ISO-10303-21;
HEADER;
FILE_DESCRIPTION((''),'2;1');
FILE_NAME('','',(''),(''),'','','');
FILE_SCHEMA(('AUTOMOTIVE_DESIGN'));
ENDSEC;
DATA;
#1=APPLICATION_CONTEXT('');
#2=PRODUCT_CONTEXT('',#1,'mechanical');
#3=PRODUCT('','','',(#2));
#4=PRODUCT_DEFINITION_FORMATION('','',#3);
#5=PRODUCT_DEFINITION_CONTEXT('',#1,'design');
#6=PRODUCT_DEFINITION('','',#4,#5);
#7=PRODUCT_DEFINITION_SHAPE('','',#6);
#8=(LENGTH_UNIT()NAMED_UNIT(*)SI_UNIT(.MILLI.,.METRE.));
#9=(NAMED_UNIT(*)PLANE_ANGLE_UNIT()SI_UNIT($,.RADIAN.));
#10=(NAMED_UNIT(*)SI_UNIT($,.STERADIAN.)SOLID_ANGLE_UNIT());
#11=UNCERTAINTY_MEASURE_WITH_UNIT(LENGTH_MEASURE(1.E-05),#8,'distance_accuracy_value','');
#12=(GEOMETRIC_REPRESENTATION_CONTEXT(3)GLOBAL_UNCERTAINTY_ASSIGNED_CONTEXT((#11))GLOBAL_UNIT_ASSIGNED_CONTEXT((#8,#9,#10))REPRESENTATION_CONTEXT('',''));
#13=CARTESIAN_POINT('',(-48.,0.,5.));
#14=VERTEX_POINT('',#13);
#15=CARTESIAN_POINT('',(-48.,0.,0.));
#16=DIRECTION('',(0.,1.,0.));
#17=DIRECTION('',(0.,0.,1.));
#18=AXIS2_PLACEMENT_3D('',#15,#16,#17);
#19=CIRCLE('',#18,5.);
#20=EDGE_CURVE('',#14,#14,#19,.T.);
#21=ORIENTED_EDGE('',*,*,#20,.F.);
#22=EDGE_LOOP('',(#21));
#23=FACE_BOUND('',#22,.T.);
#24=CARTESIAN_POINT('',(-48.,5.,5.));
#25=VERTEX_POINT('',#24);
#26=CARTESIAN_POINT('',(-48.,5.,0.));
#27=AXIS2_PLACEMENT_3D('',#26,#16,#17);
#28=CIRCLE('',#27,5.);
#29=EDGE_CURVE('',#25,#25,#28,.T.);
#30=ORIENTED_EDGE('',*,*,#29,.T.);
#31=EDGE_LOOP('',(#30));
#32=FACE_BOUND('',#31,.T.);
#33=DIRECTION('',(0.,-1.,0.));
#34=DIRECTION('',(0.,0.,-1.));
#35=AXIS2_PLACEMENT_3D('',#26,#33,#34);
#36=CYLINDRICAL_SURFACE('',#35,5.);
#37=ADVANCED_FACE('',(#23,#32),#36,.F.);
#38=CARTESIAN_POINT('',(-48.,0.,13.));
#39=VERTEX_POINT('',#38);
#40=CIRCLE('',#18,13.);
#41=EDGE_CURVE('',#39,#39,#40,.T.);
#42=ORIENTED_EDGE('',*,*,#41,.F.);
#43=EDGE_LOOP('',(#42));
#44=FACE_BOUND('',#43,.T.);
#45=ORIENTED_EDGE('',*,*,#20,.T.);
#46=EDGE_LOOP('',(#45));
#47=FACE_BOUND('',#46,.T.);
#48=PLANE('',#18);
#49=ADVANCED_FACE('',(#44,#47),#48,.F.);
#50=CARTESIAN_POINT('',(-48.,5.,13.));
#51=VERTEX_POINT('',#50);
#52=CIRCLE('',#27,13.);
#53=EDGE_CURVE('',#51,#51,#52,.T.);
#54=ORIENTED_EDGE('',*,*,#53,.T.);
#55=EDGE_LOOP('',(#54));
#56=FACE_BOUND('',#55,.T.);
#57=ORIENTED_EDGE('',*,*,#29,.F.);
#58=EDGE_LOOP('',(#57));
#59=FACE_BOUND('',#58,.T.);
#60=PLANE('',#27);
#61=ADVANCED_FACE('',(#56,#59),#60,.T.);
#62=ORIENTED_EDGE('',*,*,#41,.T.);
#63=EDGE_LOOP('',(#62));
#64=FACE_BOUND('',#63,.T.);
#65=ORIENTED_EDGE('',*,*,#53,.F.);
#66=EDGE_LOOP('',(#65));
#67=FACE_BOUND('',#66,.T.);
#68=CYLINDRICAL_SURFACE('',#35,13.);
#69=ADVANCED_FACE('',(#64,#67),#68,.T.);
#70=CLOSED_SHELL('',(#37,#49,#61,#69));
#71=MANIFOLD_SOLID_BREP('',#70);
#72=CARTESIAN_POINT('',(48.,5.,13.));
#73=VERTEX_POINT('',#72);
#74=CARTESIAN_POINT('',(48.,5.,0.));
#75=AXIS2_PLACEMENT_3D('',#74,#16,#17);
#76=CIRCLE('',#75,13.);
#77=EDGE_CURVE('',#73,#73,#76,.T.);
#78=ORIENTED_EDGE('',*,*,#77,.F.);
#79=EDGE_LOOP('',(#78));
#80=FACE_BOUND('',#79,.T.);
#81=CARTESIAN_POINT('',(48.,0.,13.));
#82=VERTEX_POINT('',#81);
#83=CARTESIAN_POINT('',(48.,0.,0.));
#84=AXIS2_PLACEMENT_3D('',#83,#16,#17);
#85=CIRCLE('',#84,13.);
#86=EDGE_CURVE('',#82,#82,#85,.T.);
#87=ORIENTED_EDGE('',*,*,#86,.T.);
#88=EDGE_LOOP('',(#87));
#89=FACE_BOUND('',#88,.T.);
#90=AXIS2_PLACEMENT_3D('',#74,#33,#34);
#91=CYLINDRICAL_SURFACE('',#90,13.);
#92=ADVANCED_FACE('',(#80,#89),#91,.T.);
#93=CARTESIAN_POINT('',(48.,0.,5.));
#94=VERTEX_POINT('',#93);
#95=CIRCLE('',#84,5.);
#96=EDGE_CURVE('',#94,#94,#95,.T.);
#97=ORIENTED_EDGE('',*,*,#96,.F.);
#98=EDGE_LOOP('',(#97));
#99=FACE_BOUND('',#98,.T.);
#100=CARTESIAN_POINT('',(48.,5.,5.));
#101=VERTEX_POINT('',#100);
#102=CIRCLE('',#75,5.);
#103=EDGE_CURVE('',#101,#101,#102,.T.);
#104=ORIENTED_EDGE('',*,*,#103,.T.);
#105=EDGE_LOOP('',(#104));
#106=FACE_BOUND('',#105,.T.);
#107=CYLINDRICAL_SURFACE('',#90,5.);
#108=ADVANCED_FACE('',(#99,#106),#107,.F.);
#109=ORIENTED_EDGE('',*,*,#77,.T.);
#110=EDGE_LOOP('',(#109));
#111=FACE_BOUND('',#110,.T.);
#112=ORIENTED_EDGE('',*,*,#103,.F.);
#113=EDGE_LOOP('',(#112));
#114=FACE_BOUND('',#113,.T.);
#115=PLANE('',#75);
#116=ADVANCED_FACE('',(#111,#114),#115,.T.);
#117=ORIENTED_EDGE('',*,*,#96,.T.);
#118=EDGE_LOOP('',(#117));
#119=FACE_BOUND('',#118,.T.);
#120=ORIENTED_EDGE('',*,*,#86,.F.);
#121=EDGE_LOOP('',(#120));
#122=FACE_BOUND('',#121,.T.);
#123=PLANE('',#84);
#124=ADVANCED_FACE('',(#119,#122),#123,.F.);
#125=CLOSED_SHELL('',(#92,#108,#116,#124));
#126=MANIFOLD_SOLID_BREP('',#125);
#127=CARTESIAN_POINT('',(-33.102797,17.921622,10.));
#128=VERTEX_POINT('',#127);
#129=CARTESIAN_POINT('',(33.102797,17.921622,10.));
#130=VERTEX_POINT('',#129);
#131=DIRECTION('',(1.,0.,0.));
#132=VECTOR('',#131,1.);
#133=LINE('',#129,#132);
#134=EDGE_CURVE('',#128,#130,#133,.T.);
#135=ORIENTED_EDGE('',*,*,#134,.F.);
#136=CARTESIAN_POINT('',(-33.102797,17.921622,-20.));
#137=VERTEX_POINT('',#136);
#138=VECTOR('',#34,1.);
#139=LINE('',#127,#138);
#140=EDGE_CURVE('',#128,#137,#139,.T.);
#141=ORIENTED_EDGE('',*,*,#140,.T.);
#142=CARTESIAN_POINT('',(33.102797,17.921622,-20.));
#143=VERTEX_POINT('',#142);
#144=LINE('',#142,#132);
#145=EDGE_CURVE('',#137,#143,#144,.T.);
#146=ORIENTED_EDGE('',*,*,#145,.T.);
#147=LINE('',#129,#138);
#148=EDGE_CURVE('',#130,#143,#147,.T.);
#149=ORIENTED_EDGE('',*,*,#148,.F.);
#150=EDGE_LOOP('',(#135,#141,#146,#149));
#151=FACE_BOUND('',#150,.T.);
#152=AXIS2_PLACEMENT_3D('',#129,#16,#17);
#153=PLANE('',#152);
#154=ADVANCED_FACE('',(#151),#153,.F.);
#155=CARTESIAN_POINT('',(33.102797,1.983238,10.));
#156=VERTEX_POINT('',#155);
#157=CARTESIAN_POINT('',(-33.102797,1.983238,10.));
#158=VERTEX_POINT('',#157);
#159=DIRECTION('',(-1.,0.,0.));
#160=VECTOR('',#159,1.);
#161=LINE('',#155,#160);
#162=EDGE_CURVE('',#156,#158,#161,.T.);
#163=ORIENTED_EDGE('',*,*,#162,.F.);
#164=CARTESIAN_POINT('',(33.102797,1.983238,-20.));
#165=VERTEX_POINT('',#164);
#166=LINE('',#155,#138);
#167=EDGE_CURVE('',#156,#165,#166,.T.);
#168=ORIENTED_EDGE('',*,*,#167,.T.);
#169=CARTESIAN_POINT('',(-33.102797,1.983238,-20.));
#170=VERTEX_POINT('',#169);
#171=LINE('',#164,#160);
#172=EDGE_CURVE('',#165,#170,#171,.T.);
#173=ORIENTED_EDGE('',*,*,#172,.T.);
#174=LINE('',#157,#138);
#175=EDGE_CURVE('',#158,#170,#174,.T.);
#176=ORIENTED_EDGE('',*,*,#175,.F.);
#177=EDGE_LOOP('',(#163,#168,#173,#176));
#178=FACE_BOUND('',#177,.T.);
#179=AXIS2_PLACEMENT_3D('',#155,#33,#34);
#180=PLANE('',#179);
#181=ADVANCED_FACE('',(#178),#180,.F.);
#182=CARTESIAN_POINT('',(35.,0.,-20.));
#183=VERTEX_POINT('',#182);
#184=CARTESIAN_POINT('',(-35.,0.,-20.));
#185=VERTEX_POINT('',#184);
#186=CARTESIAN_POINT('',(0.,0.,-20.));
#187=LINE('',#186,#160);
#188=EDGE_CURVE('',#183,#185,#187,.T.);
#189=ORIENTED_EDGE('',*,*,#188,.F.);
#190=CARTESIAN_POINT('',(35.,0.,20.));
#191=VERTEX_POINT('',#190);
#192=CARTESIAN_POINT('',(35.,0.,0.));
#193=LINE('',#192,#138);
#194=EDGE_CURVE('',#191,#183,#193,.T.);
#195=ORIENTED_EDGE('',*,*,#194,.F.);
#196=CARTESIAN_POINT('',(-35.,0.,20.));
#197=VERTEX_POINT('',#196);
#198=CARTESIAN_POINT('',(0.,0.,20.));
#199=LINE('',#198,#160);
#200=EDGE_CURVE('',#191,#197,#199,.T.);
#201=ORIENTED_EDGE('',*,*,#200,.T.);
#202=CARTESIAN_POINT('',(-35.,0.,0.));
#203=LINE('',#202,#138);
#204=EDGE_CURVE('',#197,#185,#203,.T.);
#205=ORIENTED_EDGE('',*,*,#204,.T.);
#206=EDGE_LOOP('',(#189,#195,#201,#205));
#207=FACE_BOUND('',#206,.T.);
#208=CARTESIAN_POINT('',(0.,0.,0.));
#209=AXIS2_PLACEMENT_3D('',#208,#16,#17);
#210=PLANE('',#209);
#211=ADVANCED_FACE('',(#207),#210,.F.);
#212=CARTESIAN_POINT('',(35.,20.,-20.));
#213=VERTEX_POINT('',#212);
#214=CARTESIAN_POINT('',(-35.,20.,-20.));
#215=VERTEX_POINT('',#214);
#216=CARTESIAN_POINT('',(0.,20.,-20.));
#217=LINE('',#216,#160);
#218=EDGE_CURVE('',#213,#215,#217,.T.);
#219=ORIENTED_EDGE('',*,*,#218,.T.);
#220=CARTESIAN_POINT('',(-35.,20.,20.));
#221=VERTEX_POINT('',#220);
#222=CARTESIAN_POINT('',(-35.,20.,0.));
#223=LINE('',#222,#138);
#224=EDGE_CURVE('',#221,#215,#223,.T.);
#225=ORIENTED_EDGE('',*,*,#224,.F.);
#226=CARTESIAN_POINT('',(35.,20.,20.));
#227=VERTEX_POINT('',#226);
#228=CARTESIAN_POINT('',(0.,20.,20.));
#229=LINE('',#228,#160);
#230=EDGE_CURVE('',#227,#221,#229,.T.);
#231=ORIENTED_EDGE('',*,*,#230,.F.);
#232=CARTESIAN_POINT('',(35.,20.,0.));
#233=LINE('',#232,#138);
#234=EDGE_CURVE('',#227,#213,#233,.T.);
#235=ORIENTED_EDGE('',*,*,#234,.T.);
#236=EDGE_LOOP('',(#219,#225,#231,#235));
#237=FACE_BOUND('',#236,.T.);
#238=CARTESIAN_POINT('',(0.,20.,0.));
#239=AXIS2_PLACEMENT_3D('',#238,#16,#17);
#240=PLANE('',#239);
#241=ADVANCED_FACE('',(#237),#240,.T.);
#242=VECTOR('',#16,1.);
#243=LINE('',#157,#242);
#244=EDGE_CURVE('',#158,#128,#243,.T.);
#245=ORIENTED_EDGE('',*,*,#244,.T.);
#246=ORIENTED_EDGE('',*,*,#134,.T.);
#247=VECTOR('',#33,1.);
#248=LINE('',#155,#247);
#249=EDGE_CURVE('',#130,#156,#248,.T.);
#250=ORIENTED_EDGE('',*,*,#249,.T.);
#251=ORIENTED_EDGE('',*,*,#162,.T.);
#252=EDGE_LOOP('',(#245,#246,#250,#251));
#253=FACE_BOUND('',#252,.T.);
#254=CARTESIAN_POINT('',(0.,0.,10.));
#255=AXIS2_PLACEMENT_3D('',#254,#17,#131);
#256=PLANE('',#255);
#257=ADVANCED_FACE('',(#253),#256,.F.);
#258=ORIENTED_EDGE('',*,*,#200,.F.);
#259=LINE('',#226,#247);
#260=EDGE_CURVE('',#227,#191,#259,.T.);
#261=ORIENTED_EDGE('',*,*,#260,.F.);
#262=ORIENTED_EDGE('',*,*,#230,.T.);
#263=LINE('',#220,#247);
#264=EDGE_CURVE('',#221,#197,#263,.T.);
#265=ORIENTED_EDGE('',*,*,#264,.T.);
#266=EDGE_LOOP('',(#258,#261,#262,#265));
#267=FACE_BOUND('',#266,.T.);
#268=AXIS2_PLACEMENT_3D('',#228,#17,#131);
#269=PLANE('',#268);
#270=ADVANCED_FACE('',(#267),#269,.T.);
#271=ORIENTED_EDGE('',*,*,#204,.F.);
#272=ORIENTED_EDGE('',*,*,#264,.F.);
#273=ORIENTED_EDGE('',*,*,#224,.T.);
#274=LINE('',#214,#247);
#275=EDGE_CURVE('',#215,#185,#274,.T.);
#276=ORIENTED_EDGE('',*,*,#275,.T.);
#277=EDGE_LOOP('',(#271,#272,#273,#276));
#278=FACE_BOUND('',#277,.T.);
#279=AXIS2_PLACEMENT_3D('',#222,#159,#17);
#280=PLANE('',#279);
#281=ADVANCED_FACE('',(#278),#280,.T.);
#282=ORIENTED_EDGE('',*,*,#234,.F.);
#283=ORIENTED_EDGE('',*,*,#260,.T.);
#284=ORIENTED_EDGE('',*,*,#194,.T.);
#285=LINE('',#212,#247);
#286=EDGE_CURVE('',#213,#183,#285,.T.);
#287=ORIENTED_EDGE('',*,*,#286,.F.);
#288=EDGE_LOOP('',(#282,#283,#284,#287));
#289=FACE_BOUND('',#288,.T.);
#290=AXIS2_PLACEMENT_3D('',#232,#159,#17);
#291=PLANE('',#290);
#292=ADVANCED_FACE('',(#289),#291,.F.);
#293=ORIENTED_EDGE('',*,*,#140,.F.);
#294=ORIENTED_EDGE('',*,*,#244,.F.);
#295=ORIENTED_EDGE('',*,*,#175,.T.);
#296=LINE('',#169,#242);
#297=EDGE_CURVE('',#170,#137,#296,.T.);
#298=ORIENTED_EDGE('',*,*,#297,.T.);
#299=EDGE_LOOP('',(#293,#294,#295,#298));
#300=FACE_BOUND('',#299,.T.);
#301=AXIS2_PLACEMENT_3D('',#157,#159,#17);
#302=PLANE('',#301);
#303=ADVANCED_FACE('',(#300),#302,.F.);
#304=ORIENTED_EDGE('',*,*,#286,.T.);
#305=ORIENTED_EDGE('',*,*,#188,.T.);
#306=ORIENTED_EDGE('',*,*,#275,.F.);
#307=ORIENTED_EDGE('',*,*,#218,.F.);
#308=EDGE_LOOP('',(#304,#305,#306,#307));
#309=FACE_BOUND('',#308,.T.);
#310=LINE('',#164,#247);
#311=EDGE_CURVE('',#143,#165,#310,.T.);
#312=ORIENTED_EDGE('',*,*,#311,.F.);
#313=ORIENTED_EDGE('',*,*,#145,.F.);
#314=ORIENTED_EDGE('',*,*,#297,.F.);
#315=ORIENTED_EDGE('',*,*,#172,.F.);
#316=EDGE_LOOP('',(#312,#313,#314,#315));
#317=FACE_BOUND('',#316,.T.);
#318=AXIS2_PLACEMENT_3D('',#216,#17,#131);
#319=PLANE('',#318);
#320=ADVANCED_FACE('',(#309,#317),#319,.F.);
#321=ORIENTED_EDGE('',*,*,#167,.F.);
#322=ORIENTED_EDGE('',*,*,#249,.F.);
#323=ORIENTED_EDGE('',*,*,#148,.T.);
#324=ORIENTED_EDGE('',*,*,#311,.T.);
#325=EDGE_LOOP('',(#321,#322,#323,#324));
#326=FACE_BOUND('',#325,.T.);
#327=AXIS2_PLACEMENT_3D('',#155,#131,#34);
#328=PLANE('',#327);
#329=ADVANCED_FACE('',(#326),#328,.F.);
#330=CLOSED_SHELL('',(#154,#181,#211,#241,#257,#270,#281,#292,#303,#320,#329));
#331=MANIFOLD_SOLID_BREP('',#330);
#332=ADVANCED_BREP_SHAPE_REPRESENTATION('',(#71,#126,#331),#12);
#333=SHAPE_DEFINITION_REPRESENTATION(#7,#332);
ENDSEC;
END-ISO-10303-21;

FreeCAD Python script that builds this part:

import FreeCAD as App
import Part
import Sketcher

V = App.Vector

doc = App.newDocument("Part")
body = doc.addObject("PartDesign::Body", "Body")

sketch1 = doc.addObject("Sketcher::SketchObject", "Sketch")
body.addObject(sketch1)
sketch1.AttachmentSupport = (doc.XZ_Plane, [""])
sketch1.MapMode = "FlatFace"
sketch1.addGeometry(Part.LineSegment(V(-35, -20, 0), V(-35, 20, 0)), False)
sketch1.addGeometry(Part.LineSegment(V(-35, 20, 0), V(35, 20, 0)), False)
sketch1.addGeometry(Part.LineSegment(V(35, 20, 0), V(35, -20, 0)), False)
sketch1.addGeometry(Part.LineSegment(V(35, -20, 0), V(-35, -20, 0)), False)
sketch1.addConstraint(Sketcher.Constraint("Coincident", 0, 2, 1, 1))
sketch1.addConstraint(Sketcher.Constraint("Coincident", 1, 2, 2, 1))
sketch1.addConstraint(Sketcher.Constraint("Coincident", 2, 2, 3, 1))
sketch1.addConstraint(Sketcher.Constraint("Coincident", 3, 2, 0, 1))
sketch1.addConstraint(Sketcher.Constraint("Vertical", 0))
sketch1.addConstraint(Sketcher.Constraint("Horizontal", 1))
sketch1.addConstraint(Sketcher.Constraint("Vertical", 2))
sketch1.addConstraint(Sketcher.Constraint("Horizontal", 3))
sketch1.addConstraint(Sketcher.Constraint("Symmetric", 0, 2, 2, 2, -1, 1))
sketch1.addConstraint(Sketcher.Constraint("DistanceX", 1, 1, 1, 2, 70.0))
sketch1.addConstraint(Sketcher.Constraint("DistanceY", 0, 1, 0, 2, 40.0))
pad1 = doc.addObject("PartDesign::Pad", "Pad")
body.addObject(pad1)
pad1.Profile = sketch1
pad1.Length = 20
pad1.Reversed = True

sketch2 = doc.addObject("Sketcher::SketchObject", "Sketch001")
body.addObject(sketch2)
sketch2.AttachmentSupport = (doc.XY_Plane, [""])
sketch2.MapMode = "FlatFace"
sketch2.AttachmentOffset = App.Placement(V(0, 0, -20), App.Rotation())
sketch2.addGeometry(Part.LineSegment(V(33, 18, 0), V(33, 2, 0)), False)
sketch2.addGeometry(Part.LineSegment(V(33, 2, 0), V(-33, 2, 0)), False)
sketch2.addGeometry(Part.LineSegment(V(-33, 2, 0), V(-33, 18, 0)), False)
sketch2.addGeometry(Part.LineSegment(V(-33, 18, 0), V(33, 18, 0)), False)
sketch2.addConstraint(Sketcher.Constraint("Coincident", 0, 2, 1, 1))
sketch2.addConstraint(Sketcher.Constraint("Coincident", 1, 2, 2, 1))
sketch2.addConstraint(Sketcher.Constraint("Coincident", 2, 2, 3, 1))
sketch2.addConstraint(Sketcher.Constraint("Coincident", 3, 2, 0, 1))
sketch2.addConstraint(Sketcher.Constraint("Vertical", 0))
sketch2.addConstraint(Sketcher.Constraint("Horizontal", 1))
sketch2.addConstraint(Sketcher.Constraint("Vertical", 2))
sketch2.addConstraint(Sketcher.Constraint("Horizontal", 3))
sketch2.addConstraint(Sketcher.Constraint("DistanceX", 1, 2, 1, 1, 66.205594))
sketch2.addConstraint(Sketcher.Constraint("DistanceY", 0, 2, 0, 1, 15.938384))
sketch2.addConstraint(Sketcher.Constraint("DistanceY", -1, 1, 0, 2, 1.983238))
sketch2.addConstraint(Sketcher.Constraint("DistanceX", -1, 1, 0, 2, 33.102797))
pocket1 = doc.addObject("PartDesign::Pocket", "Pocket")
body.addObject(pocket1)
pocket1.Profile = sketch2
pocket1.Length = 30
pocket1.Reversed = True
body2 = doc.addObject("PartDesign::Body", "Body001")

sketch3 = doc.addObject("Sketcher::SketchObject", "Sketch002")
body2.addObject(sketch3)
sketch3.AttachmentSupport = (doc.getObject("XZ_Plane001"), [""])
sketch3.MapMode = "FlatFace"
sketch3.addGeometry(Part.Circle(V(48, 0, 0), V(0, 0, 1), 13), False)
sketch3.addGeometry(Part.Circle(V(48, 0, 0), V(0, 0, 1), 5), False)
sketch3.addConstraint(Sketcher.Constraint("Coincident", 1, 3, 0, 3))
sketch3.addConstraint(Sketcher.Constraint("PointOnObject", 0, 3, -1))
sketch3.addConstraint(Sketcher.Constraint("Diameter", 0, 26.0))
sketch3.addConstraint(Sketcher.Constraint("Diameter", 1, 10.0))
sketch3.addConstraint(Sketcher.Constraint("DistanceX", -1, 1, 0, 3, 48.0))
pad2 = doc.addObject("PartDesign::Pad", "Pad001")
body2.addObject(pad2)
pad2.Profile = sketch3
pad2.Length = 5
pad2.Reversed = True
body3 = doc.addObject("PartDesign::Body", "Body002")

sketch4 = doc.addObject("Sketcher::SketchObject", "Sketch003")
body3.addObject(sketch4)
sketch4.AttachmentSupport = (doc.getObject("XZ_Plane002"), [""])
sketch4.MapMode = "FlatFace"
sketch4.addGeometry(Part.Circle(V(-48, 0, 0), V(0, 0, 1), 13), False)
sketch4.addGeometry(Part.Circle(V(-48, 0, 0), V(0, 0, 1), 5), False)
sketch4.addConstraint(Sketcher.Constraint("Coincident", 1, 3, 0, 3))
sketch4.addConstraint(Sketcher.Constraint("PointOnObject", 0, 3, -1))
sketch4.addConstraint(Sketcher.Constraint("Diameter", 0, 26.0))
sketch4.addConstraint(Sketcher.Constraint("Diameter", 1, 10.0))
sketch4.addConstraint(Sketcher.Constraint("DistanceX", 0, 3, -1, 1, 48.0))
pad3 = doc.addObject("PartDesign::Pad", "Pad002")
body3.addObject(pad3)
pad3.Profile = sketch4
pad3.Length = 5
pad3.Reversed = True

doc.recompute()
